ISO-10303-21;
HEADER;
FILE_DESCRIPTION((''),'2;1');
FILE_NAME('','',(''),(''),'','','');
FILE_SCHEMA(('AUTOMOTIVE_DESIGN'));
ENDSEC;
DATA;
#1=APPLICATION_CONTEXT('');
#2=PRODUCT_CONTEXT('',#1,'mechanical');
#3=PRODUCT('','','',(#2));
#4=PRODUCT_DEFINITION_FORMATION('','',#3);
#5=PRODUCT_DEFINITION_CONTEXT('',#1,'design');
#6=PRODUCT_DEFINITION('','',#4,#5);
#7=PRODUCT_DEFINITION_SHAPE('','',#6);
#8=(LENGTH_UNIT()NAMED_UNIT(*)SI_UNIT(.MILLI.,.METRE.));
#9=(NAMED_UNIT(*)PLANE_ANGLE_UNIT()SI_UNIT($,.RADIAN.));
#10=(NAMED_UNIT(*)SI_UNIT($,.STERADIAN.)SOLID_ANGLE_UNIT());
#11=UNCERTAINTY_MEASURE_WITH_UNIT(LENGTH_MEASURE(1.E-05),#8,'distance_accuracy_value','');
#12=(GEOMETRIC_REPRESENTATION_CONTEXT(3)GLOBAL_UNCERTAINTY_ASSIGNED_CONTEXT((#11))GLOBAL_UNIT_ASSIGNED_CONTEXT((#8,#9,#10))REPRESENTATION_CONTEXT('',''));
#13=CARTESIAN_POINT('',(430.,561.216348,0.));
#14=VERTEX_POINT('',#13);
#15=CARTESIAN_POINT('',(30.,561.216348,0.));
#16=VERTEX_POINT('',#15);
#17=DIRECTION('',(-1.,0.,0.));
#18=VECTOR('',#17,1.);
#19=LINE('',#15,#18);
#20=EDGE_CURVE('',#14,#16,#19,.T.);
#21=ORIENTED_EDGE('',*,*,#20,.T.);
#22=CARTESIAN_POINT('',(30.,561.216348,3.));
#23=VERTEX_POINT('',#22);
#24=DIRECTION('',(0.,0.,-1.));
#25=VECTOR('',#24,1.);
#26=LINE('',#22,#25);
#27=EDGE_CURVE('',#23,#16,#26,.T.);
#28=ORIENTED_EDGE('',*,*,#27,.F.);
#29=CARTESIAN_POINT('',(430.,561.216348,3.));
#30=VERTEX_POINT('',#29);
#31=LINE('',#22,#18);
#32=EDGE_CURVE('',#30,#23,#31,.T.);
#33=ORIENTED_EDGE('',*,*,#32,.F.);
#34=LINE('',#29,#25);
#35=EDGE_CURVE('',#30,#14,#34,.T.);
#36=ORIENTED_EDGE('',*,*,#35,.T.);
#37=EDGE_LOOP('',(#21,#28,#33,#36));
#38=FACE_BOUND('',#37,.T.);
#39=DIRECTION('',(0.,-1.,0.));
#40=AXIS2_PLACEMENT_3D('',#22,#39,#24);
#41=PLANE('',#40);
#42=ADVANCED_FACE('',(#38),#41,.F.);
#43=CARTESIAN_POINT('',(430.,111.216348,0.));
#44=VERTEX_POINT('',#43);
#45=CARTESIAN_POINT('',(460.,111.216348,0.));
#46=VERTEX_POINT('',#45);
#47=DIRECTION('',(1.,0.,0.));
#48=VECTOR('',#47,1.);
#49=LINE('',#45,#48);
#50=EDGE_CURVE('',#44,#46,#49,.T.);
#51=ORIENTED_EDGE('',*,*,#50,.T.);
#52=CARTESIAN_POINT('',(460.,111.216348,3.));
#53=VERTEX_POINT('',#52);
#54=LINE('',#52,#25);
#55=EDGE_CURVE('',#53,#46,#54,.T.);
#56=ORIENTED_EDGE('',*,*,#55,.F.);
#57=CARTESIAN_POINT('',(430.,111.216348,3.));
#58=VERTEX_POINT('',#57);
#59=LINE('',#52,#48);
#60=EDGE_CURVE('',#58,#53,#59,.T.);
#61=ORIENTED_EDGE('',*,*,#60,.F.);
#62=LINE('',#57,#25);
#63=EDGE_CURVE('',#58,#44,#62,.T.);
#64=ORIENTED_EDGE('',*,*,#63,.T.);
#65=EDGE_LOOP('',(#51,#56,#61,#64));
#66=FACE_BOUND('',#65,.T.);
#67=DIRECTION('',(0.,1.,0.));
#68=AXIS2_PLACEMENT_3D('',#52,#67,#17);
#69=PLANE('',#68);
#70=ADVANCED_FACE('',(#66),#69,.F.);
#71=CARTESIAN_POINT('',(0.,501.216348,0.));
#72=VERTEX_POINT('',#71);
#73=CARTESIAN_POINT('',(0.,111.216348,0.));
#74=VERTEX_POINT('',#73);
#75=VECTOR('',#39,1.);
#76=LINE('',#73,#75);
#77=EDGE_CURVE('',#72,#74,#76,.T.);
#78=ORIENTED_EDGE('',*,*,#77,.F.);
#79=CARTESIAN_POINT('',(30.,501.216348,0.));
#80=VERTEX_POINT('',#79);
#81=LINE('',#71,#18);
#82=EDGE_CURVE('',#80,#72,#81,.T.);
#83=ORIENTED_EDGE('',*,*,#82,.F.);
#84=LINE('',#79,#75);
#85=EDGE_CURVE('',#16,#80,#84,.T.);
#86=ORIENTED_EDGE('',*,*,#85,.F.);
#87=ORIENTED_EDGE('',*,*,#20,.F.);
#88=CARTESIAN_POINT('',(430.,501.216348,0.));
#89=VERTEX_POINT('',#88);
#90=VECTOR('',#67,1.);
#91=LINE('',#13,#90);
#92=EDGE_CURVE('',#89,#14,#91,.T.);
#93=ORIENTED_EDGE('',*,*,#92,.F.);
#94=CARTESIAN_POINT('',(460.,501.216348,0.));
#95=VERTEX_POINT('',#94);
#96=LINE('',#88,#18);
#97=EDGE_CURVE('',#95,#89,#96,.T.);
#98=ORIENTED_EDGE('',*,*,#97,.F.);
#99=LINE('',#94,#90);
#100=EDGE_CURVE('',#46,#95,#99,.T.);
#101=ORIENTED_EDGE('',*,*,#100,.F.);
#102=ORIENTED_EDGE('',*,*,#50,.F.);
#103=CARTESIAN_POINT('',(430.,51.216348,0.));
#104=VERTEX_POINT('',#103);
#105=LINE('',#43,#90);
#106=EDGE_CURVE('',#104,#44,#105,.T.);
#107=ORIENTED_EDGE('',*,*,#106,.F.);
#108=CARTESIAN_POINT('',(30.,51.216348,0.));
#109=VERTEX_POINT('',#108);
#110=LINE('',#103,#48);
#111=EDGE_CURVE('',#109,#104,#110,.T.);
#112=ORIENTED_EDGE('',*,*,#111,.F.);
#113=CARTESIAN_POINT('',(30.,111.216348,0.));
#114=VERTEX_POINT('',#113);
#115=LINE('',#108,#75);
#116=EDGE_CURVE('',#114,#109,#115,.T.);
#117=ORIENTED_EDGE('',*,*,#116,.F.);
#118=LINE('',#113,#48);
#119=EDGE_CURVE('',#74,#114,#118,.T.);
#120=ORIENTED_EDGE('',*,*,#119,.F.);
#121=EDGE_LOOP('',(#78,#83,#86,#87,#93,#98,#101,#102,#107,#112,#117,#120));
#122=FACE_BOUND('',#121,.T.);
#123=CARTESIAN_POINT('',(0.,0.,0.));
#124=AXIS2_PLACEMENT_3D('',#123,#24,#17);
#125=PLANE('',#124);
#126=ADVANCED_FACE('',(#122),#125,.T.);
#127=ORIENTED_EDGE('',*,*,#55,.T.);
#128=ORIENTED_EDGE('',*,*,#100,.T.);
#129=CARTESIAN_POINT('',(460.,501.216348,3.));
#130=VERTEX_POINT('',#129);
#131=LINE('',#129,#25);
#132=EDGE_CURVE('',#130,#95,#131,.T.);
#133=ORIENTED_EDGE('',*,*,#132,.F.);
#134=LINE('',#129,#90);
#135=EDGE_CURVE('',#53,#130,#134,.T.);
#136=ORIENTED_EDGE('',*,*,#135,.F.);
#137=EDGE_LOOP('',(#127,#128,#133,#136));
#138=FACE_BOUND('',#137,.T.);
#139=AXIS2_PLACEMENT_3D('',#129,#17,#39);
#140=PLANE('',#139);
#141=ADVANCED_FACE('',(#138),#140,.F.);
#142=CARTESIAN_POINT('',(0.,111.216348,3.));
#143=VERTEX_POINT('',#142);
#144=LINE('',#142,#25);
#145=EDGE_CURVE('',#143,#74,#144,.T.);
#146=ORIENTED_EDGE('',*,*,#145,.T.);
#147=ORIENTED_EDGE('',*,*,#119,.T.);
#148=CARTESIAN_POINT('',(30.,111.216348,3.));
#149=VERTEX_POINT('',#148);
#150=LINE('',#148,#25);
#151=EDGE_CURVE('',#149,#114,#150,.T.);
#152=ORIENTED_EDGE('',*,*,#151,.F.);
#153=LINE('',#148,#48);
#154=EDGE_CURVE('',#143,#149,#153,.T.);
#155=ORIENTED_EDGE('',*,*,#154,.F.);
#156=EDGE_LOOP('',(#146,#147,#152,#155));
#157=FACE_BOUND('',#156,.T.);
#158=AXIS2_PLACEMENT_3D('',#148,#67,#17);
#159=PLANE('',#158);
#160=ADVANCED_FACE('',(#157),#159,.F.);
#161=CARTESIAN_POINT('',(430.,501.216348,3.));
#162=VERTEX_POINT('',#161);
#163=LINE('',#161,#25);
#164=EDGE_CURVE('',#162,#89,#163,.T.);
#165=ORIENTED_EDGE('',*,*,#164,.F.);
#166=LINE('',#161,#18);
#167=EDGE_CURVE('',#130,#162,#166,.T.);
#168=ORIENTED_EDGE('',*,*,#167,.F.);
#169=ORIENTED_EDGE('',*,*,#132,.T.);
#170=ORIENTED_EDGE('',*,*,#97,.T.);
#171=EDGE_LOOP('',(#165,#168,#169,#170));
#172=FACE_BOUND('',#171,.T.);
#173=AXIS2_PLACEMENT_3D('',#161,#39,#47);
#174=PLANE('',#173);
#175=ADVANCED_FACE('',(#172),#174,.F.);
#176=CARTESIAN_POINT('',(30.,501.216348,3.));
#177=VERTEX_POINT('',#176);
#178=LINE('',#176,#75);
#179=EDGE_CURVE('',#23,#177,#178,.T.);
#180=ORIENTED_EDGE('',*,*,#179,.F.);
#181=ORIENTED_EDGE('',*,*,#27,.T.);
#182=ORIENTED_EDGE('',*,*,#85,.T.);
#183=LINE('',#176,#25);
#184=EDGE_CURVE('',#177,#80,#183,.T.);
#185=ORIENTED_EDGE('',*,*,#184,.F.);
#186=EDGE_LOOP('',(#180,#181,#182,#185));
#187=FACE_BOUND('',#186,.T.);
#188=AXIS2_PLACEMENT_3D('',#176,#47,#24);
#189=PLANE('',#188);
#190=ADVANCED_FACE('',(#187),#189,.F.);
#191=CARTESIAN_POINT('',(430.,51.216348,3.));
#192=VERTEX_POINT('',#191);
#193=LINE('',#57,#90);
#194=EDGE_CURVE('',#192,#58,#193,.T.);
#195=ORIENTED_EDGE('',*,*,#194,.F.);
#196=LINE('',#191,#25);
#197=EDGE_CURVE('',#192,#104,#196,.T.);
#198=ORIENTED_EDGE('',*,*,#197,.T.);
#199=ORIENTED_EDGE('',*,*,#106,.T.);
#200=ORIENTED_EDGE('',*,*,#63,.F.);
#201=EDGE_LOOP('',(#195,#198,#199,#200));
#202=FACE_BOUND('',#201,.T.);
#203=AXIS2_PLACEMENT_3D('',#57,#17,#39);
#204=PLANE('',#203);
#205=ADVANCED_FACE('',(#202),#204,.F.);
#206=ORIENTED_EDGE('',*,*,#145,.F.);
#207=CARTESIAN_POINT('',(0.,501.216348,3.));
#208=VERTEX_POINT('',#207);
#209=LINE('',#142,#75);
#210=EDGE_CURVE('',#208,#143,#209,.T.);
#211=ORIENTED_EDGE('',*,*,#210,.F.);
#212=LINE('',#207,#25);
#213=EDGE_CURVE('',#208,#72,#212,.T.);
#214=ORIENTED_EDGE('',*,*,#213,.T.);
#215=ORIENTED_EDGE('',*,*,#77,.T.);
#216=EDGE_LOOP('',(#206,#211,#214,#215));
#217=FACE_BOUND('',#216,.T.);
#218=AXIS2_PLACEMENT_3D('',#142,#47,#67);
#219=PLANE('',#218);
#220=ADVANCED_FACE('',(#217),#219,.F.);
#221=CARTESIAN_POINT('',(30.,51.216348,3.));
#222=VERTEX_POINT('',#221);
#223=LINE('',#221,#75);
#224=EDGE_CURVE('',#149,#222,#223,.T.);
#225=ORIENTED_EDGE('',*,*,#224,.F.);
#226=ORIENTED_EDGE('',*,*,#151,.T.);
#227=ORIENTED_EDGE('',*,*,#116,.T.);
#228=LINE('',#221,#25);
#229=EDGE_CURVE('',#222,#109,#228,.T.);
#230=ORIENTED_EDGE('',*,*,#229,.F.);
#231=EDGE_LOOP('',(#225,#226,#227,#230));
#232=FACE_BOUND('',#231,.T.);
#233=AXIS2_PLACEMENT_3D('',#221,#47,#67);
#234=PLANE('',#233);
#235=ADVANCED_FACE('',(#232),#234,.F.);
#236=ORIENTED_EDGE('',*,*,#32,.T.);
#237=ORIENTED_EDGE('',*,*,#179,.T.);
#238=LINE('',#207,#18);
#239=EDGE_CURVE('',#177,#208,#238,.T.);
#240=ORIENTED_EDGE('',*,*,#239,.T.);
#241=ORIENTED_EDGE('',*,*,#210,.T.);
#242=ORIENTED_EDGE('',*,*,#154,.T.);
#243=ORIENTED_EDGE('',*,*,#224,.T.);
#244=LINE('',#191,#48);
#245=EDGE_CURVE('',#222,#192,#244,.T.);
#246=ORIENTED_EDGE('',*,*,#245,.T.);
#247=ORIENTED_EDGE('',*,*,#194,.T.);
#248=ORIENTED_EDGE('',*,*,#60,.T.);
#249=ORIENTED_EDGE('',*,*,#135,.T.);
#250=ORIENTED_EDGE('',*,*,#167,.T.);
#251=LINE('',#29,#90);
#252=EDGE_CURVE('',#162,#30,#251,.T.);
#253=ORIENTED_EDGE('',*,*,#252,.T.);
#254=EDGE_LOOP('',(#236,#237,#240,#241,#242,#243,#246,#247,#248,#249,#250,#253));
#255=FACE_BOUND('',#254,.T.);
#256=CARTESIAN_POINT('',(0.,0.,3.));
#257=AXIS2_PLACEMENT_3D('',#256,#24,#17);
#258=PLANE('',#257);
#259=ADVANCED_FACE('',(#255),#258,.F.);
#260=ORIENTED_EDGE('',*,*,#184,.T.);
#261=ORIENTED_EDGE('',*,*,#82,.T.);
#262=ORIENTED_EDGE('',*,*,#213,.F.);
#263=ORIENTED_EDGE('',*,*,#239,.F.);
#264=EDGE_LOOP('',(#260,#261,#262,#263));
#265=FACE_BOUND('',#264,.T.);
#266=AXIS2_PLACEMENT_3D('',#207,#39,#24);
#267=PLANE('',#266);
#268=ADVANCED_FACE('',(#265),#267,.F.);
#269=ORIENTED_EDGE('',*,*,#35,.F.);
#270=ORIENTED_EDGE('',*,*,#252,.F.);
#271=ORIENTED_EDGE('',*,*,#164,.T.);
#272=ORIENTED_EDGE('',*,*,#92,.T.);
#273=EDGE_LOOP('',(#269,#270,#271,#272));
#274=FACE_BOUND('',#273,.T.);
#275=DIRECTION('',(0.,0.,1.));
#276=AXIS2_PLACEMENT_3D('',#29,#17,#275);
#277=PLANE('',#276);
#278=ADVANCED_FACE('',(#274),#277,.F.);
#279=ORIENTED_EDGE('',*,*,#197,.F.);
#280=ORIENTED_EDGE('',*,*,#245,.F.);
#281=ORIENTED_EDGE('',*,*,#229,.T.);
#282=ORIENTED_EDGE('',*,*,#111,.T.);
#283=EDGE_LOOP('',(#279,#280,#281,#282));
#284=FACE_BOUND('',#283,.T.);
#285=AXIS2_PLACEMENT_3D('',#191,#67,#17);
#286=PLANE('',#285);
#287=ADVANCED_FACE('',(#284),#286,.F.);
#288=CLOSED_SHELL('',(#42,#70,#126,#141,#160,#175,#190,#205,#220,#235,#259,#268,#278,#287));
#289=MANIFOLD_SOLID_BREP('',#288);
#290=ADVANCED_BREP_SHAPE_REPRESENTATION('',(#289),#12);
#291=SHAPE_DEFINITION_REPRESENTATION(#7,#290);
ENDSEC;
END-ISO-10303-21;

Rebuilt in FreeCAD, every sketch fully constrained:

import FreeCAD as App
import Part
import Sketcher

doc = App.newDocument("Part")
body = doc.addObject("PartDesign::Body", "Body")

sketch1 = doc.addObject("Sketcher::SketchObject", "Sketch")
body.addObject(sketch1)
sketch1.AttachmentSupport = (doc.XY_Plane, [""])
sketch1.MapMode = "FlatFace"
sketch1.addGeometry(Part.LineSegment(App.Vector(30, 111, 0), App.Vector(30, 51, 0)), False)
sketch1.addGeometry(Part.LineSegment(App.Vector(30, 51, 0), App.Vector(430, 51, 0)), False)
sketch1.addGeometry(Part.LineSegment(App.Vector(430, 51, 0), App.Vector(430, 111, 0)), False)
sketch1.addGeometry(Part.LineSegment(App.Vector(430, 111, 0), App.Vector(460, 111, 0)), False)
sketch1.addGeometry(Part.LineSegment(App.Vector(460, 111, 0), App.Vector(460, 501, 0)), False)
sketch1.addGeometry(Part.LineSegment(App.Vector(460, 501, 0), App.Vector(430, 501, 0)), False)
sketch1.addGeometry(Part.LineSegment(App.Vector(430, 501, 0), App.Vector(430, 561, 0)), False)
sketch1.addGeometry(Part.LineSegment(App.Vector(430, 561, 0), App.Vector(30, 561, 0)), False)
sketch1.addGeometry(Part.LineSegment(App.Vector(30, 561, 0), App.Vector(30, 501, 0)), False)
sketch1.addGeometry(Part.LineSegment(App.Vector(30, 501, 0), App.Vector(0, 501, 0)), False)
sketch1.addGeometry(Part.LineSegment(App.Vector(0, 501, 0), App.Vector(0, 111, 0)), False)
sketch1.addGeometry(Part.LineSegment(App.Vector(0, 111, 0), App.Vector(30, 111, 0)), False)
sketch1.addConstraint(Sketcher.Constraint("Coincident", 0, 2, 1, 1))
sketch1.addConstraint(Sketcher.Constraint("Coincident", 1, 2, 2, 1))
sketch1.addConstraint(Sketcher.Constraint("Coincident", 2, 2, 3, 1))
sketch1.addConstraint(Sketcher.Constraint("Coincident", 3, 2, 4, 1))
sketch1.addConstraint(Sketcher.Constraint("Coincident", 4, 2, 5, 1))
sketch1.addConstraint(Sketcher.Constraint("Coincident", 5, 2, 6, 1))
sketch1.addConstraint(Sketcher.Constraint("Coincident", 6, 2, 7, 1))
sketch1.addConstraint(Sketcher.Constraint("Coincident", 7, 2, 8, 1))
sketch1.addConstraint(Sketcher.Constraint("Coincident", 8, 2, 9, 1))
sketch1.addConstraint(Sketcher.Constraint("Coincident", 9, 2, 10, 1))
sketch1.addConstraint(Sketcher.Constraint("Coincident", 10, 2, 11, 1))
sketch1.addConstraint(Sketcher.Constraint("Coincident", 11, 2, 0, 1))
sketch1.addConstraint(Sketcher.Constraint("Vertical", 0))
sketch1.addConstraint(Sketcher.Constraint("Horizontal", 1))
sketch1.addConstraint(Sketcher.Constraint("Vertical", 2))
sketch1.addConstraint(Sketcher.Constraint("Horizontal", 3))
sketch1.addConstraint(Sketcher.Constraint("Vertical", 4))
sketch1.addConstraint(Sketcher.Constraint("Horizontal", 5))
sketch1.addConstraint(Sketcher.Constraint("Vertical", 6))
sketch1.addConstraint(Sketcher.Constraint("Horizontal", 7))
sketch1.addConstraint(Sketcher.Constraint("Vertical", 8))
sketch1.addConstraint(Sketcher.Constraint("Horizontal", 9))
sketch1.addConstraint(Sketcher.Constraint("Vertical", 10))
sketch1.addConstraint(Sketcher.Constraint("Horizontal", 11))
sketch1.addConstraint(Sketcher.Constraint("PointOnObject", 9, 2, -2))
sketch1.addConstraint(Sketcher.Constraint("Horizontal", 5, 2, 8, 2))
sketch1.addConstraint(Sketcher.Constraint("Horizontal", 3, 2, 10, 2))
sketch1.addConstraint(Sketcher.Constraint("Vertical", 2, 2, 5, 2))
sketch1.addConstraint(Sketcher.Constraint("Vertical", 0, 2, 7, 2))
sketch1.addConstraint(Sketcher.Constraint("Equal", 5, 9))
sketch1.addConstraint(Sketcher.Constraint("Equal", 2, 6))
sketch1.addConstraint(Sketcher.Constraint("DistanceX", 1, 1, 1, 2, 400.0))
sketch1.addConstraint(Sketcher.Constraint("DistanceX", 3, 1, 3, 2, 30.0))
sketch1.addConstraint(Sketcher.Constraint("DistanceY", 0, 2, 0, 1, 60.0))
sketch1.addConstraint(Sketcher.Constraint("DistanceY", 4, 1, 4, 2, 390.0))
sketch1.addConstraint(Sketcher.Constraint("DistanceY", -1, 1, 0, 2, 51.216348))
pad1 = doc.addObject("PartDesign::Pad", "Pad")
body.addObject(pad1)
pad1.Profile = sketch1
pad1.Length = 3

doc.recompute()
